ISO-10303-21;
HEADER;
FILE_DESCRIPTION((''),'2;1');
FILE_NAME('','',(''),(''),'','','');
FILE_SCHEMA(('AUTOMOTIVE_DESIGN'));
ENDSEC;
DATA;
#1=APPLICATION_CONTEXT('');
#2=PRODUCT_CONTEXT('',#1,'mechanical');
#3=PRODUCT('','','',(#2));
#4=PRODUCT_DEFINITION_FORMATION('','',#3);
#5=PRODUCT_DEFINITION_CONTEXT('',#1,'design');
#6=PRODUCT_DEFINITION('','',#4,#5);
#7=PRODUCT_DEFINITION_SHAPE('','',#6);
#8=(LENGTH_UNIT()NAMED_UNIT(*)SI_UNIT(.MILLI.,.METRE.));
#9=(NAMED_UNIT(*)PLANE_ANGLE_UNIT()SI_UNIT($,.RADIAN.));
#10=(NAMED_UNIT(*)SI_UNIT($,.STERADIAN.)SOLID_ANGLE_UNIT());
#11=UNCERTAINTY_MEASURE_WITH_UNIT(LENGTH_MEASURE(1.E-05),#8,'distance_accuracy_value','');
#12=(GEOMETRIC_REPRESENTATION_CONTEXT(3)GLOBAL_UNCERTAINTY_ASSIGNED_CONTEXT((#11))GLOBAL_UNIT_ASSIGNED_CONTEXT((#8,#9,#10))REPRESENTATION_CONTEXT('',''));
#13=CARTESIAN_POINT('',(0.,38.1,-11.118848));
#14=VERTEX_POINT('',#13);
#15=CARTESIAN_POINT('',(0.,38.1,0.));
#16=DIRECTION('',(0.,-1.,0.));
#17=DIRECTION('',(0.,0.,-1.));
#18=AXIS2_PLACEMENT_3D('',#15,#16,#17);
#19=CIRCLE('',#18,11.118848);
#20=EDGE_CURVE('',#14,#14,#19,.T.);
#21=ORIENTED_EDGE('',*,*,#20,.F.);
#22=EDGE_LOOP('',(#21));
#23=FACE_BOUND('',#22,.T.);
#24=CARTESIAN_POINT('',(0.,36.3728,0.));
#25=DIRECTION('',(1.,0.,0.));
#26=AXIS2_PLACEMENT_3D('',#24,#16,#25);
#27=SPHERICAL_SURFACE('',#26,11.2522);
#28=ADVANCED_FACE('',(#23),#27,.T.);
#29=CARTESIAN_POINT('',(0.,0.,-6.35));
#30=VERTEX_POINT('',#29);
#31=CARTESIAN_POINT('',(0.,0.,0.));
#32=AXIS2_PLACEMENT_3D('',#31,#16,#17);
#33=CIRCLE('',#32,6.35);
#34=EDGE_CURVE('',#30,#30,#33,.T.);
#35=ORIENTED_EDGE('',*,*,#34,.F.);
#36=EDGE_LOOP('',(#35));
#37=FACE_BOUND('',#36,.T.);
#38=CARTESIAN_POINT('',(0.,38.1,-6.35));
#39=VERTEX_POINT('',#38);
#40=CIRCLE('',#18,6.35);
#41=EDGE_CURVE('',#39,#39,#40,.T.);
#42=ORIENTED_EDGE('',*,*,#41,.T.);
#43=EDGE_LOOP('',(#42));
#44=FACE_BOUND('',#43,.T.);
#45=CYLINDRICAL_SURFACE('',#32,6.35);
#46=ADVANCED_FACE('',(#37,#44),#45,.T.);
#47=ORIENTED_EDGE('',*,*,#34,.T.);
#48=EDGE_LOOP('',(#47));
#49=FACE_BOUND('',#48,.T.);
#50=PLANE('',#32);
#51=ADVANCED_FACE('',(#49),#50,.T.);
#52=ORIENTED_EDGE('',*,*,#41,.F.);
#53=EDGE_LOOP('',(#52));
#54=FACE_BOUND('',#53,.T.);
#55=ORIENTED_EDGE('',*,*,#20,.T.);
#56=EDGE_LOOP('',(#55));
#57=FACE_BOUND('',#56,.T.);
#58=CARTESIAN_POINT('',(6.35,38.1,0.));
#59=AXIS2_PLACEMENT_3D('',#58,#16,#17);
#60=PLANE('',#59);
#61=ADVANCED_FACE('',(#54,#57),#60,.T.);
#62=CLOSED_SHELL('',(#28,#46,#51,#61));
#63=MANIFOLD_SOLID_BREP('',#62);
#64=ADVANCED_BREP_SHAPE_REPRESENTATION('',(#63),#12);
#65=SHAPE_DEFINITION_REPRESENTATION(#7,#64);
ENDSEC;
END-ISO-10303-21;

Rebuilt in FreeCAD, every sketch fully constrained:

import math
import FreeCAD as App
import Part
import Sketcher

V = App.Vector
Q = App.Units.Quantity

doc = App.newDocument("Part")
body = doc.addObject("PartDesign::Body", "Body")

sketch1 = body.newObject("Sketcher::SketchObject", "Sketch")
sketch1.AttachmentSupport = (doc.getObject("XY_Plane"), [""])
sketch1.MapMode = "FlatFace"
sketch1.addGeometry([
    Part.LineSegment(V(0, 0, 0), V(6.35, 0, 0)),
    Part.LineSegment(V(6.35, 0, 0), V(6.35, 38.1, 0)),
    Part.LineSegment(V(6.35, 38.1, 0), V(11.118848, 38.1, 0)),
    Part.ArcOfCircle(Part.Circle(V(0, 36.3728, 0), V(0, 0, 1), 11.2522), math.radians(8.829746), math.radians(90)),
    Part.LineSegment(V(0, 47.625, 0), V(0, 0, 0)),
], False)
sketch1.addConstraint([
    Sketcher.Constraint("Coincident", 0, 2, 1, 1),
    Sketcher.Constraint("Coincident", 1, 2, 2, 1),
    Sketcher.Constraint("Coincident", 2, 2, 3, 1),
    Sketcher.Constraint("Coincident", 3, 2, 4, 1),
    Sketcher.Constraint("Coincident", 4, 2, 0, 1),
    Sketcher.Constraint("Horizontal", 0),
    Sketcher.Constraint("Vertical", 1),
    Sketcher.Constraint("Horizontal", 2),
    Sketcher.Constraint("Vertical", 4),
    Sketcher.Constraint("Coincident", 4, 2, -1, 1),
    Sketcher.Constraint("PointOnObject", 3, 3, -2),
    Sketcher.Constraint("DistanceY", 1, 1, 1, 2, Q("1.5 in")),
    Sketcher.Constraint("Radius", 3, Q("0.443 in")),
    Sketcher.Constraint("DistanceX", 0, 1, 0, 2, Q("0.25 in")),
    Sketcher.Constraint("DistanceY", 4, 2, 4, 1, Q("1.875 in")),
])
revolution = body.newObject("PartDesign::Revolution", "Revolution")
revolution.Profile = sketch1
revolution.ReferenceAxis = (sketch1, ["V_Axis"])
revolution.Angle = 360

doc.recompute()
